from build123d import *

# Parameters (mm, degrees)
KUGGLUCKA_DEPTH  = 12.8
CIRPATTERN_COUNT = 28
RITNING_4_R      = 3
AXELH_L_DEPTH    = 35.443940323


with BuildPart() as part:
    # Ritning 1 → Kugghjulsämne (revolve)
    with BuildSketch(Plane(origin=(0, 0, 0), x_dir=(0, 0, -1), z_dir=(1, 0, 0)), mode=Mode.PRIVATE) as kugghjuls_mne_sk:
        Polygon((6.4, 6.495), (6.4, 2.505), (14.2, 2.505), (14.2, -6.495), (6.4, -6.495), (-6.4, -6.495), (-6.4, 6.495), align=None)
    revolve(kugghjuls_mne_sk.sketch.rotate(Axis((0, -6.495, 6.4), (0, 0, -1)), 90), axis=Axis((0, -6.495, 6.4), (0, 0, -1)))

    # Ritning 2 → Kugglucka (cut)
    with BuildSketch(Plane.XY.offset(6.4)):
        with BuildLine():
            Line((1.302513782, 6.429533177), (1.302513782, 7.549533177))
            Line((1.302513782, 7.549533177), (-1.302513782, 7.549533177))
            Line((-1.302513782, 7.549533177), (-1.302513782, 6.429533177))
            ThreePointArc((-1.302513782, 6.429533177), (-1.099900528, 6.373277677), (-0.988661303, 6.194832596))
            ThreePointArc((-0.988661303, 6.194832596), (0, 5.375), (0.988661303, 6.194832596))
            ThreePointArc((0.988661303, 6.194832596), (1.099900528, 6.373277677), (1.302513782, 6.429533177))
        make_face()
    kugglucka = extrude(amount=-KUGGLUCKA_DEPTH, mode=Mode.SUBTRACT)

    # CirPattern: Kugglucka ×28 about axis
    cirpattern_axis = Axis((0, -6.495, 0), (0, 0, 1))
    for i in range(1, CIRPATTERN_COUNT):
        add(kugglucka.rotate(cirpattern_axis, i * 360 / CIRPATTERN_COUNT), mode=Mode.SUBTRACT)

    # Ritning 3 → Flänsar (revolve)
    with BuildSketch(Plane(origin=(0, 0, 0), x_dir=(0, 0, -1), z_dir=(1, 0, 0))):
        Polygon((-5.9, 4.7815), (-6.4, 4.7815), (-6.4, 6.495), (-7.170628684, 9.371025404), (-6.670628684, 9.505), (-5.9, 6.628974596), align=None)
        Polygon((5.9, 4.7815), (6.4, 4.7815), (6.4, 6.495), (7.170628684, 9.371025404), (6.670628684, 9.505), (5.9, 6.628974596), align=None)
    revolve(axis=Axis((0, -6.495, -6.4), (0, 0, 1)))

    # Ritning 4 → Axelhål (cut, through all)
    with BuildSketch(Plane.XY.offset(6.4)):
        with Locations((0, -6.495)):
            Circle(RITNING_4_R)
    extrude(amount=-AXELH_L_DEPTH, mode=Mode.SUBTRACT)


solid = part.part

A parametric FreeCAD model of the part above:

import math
import FreeCAD as App
import Part
import Sketcher
from FreeCAD import Vector
Q = App.Units.Quantity


def add_polygon(sketch, points):
    """Adds a closed chain of lines whose ends are joined by coincident constraints."""
    first, n = sketch.GeometryCount, len(points)
    for a, b in zip(points, points[1:] + points[:1]):
        sketch.addGeometry(Part.LineSegment(App.Vector(*a, 0), App.Vector(*b, 0)), False)
    for i in range(n):
        sketch.addConstraint(Sketcher.Constraint("Coincident", first + i, 2, first + (i + 1) % n, 1))

doc = App.newDocument("Part")
body = doc.addObject("PartDesign::Body", "Body")

sketch1 = body.newObject("Sketcher::SketchObject", "Sketch")
sketch1.AttachmentSupport = (doc.getObject("YZ_Plane"), [""])
sketch1.MapMode = "FlatFace"
add_polygon(sketch1, [(2.5, -6.4), (6.5, -6.4), (6.5, 6.4), (-6.5, 6.4), (-6.5, -14.2), (2.5, -14.2)])
sketch1.addGeometry(Part.LineSegment(Vector(-6.5, 6.4, 0), Vector(-6.5, -14.2, 0)), True)
sketch1.addConstraint(Sketcher.Constraint("Horizontal", 0))
sketch1.addConstraint(Sketcher.Constraint("Vertical", 1))
sketch1.addConstraint(Sketcher.Constraint("Horizontal", 2))
sketch1.addConstraint(Sketcher.Constraint("Vertical", 3))
sketch1.addConstraint(Sketcher.Constraint("Horizontal", 4))
sketch1.addConstraint(Sketcher.Constraint("Vertical", 5))
sketch1.addConstraint(Sketcher.Constraint("Vertical", 6))
sketch1.addConstraint(Sketcher.Constraint("Coincident", 6, 1, 2, 2))
sketch1.addConstraint(Sketcher.Constraint("Symmetric", 0, 2, 2, 2, -1, 1))
sketch1.addConstraint(Sketcher.Constraint("Horizontal", 4, 2, 6, 2))
sketch1.addConstraint(Sketcher.Constraint("DistanceX", 4, 1, 4, 2, 9.0))
sketch1.addConstraint(Sketcher.Constraint("DistanceY", 1, 1, 1, 2, 12.8))
sketch1.addConstraint(Sketcher.Constraint("DistanceY", 3, 2, 3, 1, 20.6))
sketch1.addConstraint(Sketcher.Constraint("DistanceX", 0, 1, 0, 2, 3.99))
revolution = body.newObject("PartDesign::Revolution", "Revolution")
revolution.Profile = sketch1
revolution.ReferenceAxis = (sketch1, ["Axis0"])
revolution.Angle = 360

sketch2 = body.newObject("Sketcher::SketchObject", "Sketch001")
sketch2.AttachmentSupport = (doc.getObject("XY_Plane"), [""])
sketch2.MapMode = "FlatFace"
sketch2.AttachmentOffset = App.Placement(Vector(0, 0, 6.4), App.Rotation())
sketch2.addGeometry(Part.LineSegment(Vector(1.3, 6.43, 0), Vector(1.3, 7.55, 0)), False)
sketch2.addGeometry(Part.LineSegment(Vector(1.3, 7.55, 0), Vector(-1.3, 7.55, 0)), False)
sketch2.addGeometry(Part.LineSegment(Vector(-1.3, 7.55, 0), Vector(-1.3, 6.43, 0)), False)
sketch2.addGeometry(Part.ArcOfCircle(Part.Circle(Vector(-1.27, 6.14, 0), Vector(0, 0, 1), 0.29), math.radians(11), math.radians(96)), False)
sketch2.addGeometry(Part.ArcOfCircle(Part.Circle(Vector(0, 6.38, 0), Vector(0, 0, 1), 1.01), math.radians(-169), math.radians(-11)), False)
sketch2.addGeometry(Part.ArcOfCircle(Part.Circle(Vector(1.27, 6.14, 0), Vector(0, 0, 1), 0.29), math.radians(84), math.radians(169)), False)
sketch2.addConstraint(Sketcher.Constraint("Coincident", 0, 2, 1, 1))
sketch2.addConstraint(Sketcher.Constraint("Coincident", 1, 2, 2, 1))
sketch2.addConstraint(Sketcher.Constraint("Coincident", 2, 2, 3, 2))
sketch2.addConstraint(Sketcher.Constraint("Tangent", 3, 1, 4, 1))
sketch2.addConstraint(Sketcher.Constraint("Tangent", 4, 2, 5, 2))
sketch2.addConstraint(Sketcher.Constraint("Coincident", 5, 1, 0, 1))
sketch2.addConstraint(Sketcher.Constraint("Vertical", 0))
sketch2.addConstraint(Sketcher.Constraint("Horizontal", 1))
sketch2.addConstraint(Sketcher.Constraint("Vertical", 2))
sketch2.addConstraint(Sketcher.Constraint("Equal", 3, 5))
sketch2.addConstraint(Sketcher.Constraint("Symmetric", 3, 3, 5, 3, -2))
sketch2.addConstraint(Sketcher.Constraint("Horizontal", 2, 2, 5, 1))
sketch2.addConstraint(Sketcher.Constraint("DistanceY", 0, 1, 0, 2, 1.12))
sketch2.addConstraint(Sketcher.Constraint("Radius", 3, 0.289801))
sketch2.addConstraint(Sketcher.Constraint("Radius", 4, 1.006045))
sketch2.addConstraint(Sketcher.Constraint("DistanceY", 3, 1, 2, 2, 0.234701))
sketch2.addConstraint(Sketcher.Constraint("DistanceX", 1, 2, 1, 1, 2.605028))
sketch2.addConstraint(Sketcher.Constraint("DistanceY", -1, 1, 3, 3, 6.141192))
pocket1 = body.newObject("PartDesign::Pocket", "Pocket")
pocket1.Profile = sketch2
pocket1.Length = 12.8
doc.recompute()

datumline = body.newObject("PartDesign::Line", "DatumLine")
datumline.Placement = App.Placement(Vector(0, -6.495, 0), App.Rotation(Vector(0, 0, 1), Vector(0, 0, 1)))
polarpattern = body.newObject("PartDesign::PolarPattern", "PolarPattern")
polarpattern.Originals = [pocket1]
polarpattern.Axis = (datumline, [""])
polarpattern.Angle = 360
polarpattern.Occurrences = 28
body.Tip = polarpattern

sketch3 = body.newObject("Sketcher::SketchObject", "Sketch002")
sketch3.AttachmentSupport = (doc.getObject("YZ_Plane"), [""])
sketch3.MapMode = "FlatFace"
add_polygon(sketch3, [(4.8, 6.4), (4.8, 5.9), (6.6, 5.9), (9.5, 6.7), (9.4, 7.2), (6.5, 6.4)])
add_polygon(sketch3, [(4.8, -5.9), (4.8, -6.4), (6.5, -6.4), (9.4, -7.2), (9.5, -6.7), (6.6, -5.9)])
sketch3.addGeometry(Part.LineSegment(Vector(-6.5, -7.2, 0), Vector(-6.5, 7.2, 0)), True)
sketch3.addConstraint(Sketcher.Constraint("Vertical", 0))
sketch3.addConstraint(Sketcher.Constraint("Horizontal", 1))
sketch3.addConstraint(Sketcher.Constraint("Horizontal", 5))
sketch3.addConstraint(Sketcher.Constraint("Vertical", 6))
sketch3.addConstraint(Sketcher.Constraint("Horizontal", 7))
sketch3.addConstraint(Sketcher.Constraint("Horizontal", 11))
sketch3.addConstraint(Sketcher.Constraint("Vertical", 12))
sketch3.addConstraint(Sketcher.Constraint("Symmetric", 5, 2, 6, 2, -1))
sketch3.addConstraint(Sketcher.Constraint("Symmetric", 3, 2, 8, 2, -1))
sketch3.addConstraint(Sketcher.Constraint("Symmetric", 2, 2, 9, 2, -1))
sketch3.addConstraint(Sketcher.Constraint("Symmetric", 1, 2, 10, 2, -1))
sketch3.addConstraint(Sketcher.Constraint("Perpendicular", 2, 3))
sketch3.addConstraint(Sketcher.Constraint("Perpendicular", 3, 4))
sketch3.addConstraint(Sketcher.Constraint("Perpendicular", 8, 9))
sketch3.addConstraint(Sketcher.Constraint("Horizontal", 8, 2, 12, 1))
sketch3.addConstraint(Sketcher.Constraint("Horizontal", 3, 2, 12, 2))
sketch3.addConstraint(Sketcher.Constraint("Equal", 2, 4))
sketch3.addConstraint(Sketcher.Constraint("Angle", 2, Q("15 deg")))
sketch3.addConstraint(Sketcher.Constraint("DistanceY", 0, 2, 0, 1, 0.5))
sketch3.addConstraint(Sketcher.Constraint("DistanceY", -1, 1, 0, 2, 5.9))
sketch3.addConstraint(Sketcher.Constraint("DistanceX", 4, 2, 2, 2, 3.01))
sketch3.addConstraint(Sketcher.Constraint("DistanceX", 12, 1, 7, 2, 12.99))
sketch3.addConstraint(Sketcher.Constraint("DistanceX", 5, 2, 5, 1, 1.7135))
sketch3.addConstraint(Sketcher.Constraint("DistanceX", -1, 1, 2, 2, 9.505))
revolution2 = body.newObject("PartDesign::Revolution", "Revolution001")
revolution2.Profile = sketch3
revolution2.ReferenceAxis = (sketch3, ["Axis0"])
revolution2.Angle = 360

sketch4 = body.newObject("Sketcher::SketchObject", "Sketch003")
sketch4.AttachmentSupport = (doc.getObject("XY_Plane"), [""])
sketch4.MapMode = "FlatFace"
sketch4.AttachmentOffset = App.Placement(Vector(0, 0, 6.4), App.Rotation())
sketch4.addGeometry(Part.Circle(Vector(0, -6.5, 0), Vector(0, 0, 1), 3), False)
sketch4.addConstraint(Sketcher.Constraint("PointOnObject", 0, 3, -2))
sketch4.addConstraint(Sketcher.Constraint("Diameter", 0, 6.0))
sketch4.addConstraint(Sketcher.Constraint("DistanceY", 0, 3, -1, 1, 6.495))
pocket2 = body.newObject("PartDesign::Pocket", "Pocket001")
pocket2.Profile = sketch4
pocket2.Type = "ThroughAll"

doc.recompute()
